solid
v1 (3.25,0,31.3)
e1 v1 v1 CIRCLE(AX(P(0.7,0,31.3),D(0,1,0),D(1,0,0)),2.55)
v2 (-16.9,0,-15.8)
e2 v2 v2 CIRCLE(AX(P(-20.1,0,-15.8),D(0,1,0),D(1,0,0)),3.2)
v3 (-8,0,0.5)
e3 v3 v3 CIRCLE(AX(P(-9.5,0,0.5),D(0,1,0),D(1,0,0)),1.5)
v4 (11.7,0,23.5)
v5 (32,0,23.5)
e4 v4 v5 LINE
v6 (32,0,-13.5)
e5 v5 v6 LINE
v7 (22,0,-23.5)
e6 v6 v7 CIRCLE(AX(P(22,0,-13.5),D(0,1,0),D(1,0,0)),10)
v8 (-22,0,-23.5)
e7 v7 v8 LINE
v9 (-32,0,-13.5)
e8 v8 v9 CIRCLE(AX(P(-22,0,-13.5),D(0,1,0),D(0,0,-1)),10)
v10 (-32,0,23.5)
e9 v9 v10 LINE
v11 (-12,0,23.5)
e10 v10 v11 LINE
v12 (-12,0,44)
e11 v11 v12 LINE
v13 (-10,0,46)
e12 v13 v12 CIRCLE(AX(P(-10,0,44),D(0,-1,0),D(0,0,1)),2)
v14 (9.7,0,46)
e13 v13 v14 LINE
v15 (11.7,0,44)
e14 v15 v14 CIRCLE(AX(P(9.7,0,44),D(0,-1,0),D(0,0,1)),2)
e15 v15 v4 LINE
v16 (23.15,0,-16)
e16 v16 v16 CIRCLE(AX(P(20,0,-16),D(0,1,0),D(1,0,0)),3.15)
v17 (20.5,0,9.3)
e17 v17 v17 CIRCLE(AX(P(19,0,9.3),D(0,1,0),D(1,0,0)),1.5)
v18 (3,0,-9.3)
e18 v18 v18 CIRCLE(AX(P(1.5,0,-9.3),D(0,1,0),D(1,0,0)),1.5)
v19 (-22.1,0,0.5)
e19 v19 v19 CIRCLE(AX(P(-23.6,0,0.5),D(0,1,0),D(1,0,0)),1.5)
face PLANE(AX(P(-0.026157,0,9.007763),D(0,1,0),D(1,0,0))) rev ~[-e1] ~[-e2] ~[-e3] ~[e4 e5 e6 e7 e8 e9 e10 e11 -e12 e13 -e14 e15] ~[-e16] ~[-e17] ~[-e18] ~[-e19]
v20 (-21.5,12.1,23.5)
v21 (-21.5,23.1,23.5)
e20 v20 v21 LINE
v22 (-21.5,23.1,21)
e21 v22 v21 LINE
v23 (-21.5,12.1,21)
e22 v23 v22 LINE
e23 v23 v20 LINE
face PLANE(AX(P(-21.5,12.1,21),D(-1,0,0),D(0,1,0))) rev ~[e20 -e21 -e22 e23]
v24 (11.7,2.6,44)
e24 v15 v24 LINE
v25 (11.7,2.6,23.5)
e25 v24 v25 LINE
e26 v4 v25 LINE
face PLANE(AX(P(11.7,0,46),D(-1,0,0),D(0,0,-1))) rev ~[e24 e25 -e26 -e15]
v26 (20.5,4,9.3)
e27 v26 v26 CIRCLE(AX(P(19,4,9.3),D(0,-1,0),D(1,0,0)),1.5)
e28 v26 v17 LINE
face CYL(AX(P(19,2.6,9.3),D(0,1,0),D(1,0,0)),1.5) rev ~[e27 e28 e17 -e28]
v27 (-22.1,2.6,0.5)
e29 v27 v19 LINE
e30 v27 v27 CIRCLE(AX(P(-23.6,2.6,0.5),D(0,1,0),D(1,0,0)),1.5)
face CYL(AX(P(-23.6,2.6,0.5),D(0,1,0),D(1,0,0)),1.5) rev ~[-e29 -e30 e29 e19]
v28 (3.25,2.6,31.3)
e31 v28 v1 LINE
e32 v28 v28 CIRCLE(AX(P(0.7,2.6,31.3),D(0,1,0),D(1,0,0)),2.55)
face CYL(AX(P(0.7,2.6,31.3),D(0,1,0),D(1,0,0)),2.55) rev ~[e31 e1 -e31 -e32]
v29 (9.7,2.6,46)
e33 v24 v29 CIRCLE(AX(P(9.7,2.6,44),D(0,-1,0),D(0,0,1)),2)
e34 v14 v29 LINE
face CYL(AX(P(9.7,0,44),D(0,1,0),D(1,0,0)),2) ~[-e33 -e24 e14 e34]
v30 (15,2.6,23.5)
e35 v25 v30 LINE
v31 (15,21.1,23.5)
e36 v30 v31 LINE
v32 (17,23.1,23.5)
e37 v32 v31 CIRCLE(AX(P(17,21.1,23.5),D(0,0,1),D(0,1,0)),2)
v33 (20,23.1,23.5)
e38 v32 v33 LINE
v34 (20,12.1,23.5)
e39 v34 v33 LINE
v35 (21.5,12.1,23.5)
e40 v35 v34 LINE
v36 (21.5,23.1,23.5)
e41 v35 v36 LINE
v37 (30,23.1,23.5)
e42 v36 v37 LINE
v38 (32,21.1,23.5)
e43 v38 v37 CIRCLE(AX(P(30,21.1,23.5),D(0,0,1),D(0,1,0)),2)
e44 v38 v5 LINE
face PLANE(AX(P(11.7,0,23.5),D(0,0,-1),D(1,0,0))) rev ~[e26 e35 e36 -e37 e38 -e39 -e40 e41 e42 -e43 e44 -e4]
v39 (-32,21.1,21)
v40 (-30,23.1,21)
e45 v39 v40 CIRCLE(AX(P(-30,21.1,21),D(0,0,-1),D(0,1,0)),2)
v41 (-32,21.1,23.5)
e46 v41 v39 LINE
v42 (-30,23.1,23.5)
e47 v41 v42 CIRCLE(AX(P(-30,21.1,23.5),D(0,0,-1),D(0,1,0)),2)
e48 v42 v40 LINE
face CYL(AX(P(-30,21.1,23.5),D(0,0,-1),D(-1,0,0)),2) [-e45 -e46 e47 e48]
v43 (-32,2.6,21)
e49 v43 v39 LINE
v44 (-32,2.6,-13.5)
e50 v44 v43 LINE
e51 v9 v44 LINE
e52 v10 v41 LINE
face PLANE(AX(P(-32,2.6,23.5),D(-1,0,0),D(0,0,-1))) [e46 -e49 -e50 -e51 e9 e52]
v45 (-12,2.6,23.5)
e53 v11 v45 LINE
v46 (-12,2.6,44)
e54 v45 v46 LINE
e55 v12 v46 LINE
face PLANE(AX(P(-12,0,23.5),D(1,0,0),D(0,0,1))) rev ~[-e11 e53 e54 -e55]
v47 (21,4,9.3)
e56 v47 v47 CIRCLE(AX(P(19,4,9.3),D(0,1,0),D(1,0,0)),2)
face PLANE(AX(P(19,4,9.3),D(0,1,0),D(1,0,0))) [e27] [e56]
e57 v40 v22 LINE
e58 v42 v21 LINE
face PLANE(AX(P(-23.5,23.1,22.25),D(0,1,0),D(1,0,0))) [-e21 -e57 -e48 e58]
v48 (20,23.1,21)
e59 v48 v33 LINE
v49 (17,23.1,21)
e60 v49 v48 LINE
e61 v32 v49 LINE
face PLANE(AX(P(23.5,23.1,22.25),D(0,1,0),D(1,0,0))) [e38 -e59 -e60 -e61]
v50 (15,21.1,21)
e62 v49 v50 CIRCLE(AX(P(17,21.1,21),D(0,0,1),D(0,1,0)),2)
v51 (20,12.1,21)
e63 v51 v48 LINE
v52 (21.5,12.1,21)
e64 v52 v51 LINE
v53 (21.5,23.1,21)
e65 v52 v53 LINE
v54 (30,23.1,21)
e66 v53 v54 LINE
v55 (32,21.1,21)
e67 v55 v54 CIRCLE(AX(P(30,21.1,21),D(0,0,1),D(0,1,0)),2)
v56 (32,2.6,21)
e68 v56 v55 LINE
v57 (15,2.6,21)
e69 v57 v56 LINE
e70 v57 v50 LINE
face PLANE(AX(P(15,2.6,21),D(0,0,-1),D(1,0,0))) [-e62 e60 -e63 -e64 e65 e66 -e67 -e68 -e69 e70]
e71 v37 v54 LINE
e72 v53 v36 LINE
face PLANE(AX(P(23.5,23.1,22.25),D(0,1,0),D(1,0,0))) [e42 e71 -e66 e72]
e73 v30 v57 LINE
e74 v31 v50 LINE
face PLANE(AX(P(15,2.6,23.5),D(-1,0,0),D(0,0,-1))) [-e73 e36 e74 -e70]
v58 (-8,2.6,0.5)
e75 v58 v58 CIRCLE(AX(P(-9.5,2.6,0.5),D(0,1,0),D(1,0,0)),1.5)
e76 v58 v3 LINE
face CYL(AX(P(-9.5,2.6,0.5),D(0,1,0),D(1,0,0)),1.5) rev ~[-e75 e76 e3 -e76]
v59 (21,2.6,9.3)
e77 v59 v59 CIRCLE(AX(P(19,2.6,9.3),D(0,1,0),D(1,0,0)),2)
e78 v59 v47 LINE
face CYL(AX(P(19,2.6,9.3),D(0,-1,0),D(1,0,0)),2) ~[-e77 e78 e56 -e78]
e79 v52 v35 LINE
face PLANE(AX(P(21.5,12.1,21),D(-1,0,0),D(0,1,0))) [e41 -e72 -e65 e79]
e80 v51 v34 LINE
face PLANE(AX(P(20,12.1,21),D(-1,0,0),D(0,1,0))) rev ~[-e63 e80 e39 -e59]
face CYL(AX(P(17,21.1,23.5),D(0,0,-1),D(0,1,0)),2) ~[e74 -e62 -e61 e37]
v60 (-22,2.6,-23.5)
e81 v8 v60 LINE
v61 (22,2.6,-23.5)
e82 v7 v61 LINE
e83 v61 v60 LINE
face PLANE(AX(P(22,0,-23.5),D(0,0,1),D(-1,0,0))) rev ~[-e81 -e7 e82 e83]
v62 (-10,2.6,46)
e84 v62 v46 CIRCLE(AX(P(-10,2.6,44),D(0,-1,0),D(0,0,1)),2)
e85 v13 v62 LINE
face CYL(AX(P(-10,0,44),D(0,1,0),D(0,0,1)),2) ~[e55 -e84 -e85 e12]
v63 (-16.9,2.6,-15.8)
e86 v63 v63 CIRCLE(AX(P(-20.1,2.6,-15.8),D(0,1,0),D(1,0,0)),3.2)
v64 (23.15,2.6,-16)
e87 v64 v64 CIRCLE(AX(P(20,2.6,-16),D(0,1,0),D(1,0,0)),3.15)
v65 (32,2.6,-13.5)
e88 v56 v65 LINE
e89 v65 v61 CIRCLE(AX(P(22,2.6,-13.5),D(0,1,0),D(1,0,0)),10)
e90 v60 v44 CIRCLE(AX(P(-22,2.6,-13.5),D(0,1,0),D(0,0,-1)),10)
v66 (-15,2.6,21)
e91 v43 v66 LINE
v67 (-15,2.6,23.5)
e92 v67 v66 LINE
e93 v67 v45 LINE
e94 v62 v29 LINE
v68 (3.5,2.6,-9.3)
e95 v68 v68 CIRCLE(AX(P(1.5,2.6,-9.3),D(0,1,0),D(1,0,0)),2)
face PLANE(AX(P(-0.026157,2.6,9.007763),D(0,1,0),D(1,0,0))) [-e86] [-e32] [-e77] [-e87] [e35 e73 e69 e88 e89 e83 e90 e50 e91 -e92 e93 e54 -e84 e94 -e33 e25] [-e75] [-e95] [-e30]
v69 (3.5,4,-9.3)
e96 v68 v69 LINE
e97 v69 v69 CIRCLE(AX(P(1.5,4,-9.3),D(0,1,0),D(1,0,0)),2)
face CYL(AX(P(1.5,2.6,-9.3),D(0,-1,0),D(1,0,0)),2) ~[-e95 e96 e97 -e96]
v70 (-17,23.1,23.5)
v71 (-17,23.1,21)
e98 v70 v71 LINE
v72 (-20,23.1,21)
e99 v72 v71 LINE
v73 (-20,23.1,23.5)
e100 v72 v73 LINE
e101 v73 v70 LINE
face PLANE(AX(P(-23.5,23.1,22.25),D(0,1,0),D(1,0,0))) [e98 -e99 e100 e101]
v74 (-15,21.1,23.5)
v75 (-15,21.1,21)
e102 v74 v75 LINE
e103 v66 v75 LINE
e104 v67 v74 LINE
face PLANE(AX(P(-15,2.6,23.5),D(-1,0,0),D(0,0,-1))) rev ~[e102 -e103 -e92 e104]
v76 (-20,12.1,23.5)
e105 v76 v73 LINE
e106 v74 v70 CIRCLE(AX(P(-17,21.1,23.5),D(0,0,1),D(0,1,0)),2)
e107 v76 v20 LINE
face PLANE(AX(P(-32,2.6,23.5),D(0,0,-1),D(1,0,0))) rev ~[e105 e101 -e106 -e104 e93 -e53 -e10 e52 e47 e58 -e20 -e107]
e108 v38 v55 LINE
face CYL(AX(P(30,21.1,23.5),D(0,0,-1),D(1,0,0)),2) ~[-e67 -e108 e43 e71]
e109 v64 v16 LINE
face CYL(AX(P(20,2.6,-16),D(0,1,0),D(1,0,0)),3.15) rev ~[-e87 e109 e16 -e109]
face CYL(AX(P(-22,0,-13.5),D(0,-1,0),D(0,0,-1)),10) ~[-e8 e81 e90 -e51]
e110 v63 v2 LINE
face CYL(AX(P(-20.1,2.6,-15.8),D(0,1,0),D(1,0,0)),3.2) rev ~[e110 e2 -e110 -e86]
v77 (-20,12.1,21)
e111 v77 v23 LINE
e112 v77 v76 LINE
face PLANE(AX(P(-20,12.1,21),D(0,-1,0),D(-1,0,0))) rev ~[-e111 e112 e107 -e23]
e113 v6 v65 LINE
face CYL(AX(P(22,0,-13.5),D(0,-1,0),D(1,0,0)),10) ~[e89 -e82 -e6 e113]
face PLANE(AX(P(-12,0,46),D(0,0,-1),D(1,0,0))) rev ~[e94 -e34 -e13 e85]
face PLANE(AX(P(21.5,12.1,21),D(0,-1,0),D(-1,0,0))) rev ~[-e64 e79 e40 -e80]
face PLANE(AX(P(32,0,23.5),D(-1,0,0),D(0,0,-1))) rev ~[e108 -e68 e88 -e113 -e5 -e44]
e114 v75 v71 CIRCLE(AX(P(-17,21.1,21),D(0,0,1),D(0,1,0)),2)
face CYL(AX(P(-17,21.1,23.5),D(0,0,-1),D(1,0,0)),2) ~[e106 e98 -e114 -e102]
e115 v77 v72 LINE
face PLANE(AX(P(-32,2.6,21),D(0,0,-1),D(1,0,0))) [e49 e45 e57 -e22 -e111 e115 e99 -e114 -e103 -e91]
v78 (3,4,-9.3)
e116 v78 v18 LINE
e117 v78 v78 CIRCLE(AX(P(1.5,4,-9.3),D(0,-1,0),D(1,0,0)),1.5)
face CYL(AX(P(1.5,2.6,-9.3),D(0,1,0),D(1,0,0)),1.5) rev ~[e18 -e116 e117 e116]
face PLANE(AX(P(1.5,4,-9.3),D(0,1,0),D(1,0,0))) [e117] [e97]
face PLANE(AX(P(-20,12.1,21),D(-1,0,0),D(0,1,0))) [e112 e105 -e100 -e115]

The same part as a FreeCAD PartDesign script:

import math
import FreeCAD as App
import Part
import Sketcher
from FreeCAD import Vector


def edges_at(feature, points):
    """Names of the edges that pass closest to the given points."""
    edges = feature.Shape.Edges
    near = lambda p: min(range(len(edges)), key=lambda i: edges[i].distToShape(Part.Vertex(*p))[0])
    return sorted({f"Edge{near(p) + 1}" for p in points})

doc = App.newDocument("Part")
body = doc.addObject("PartDesign::Body", "Body")

# Sketch on XZ plane
sketch1 = body.newObject("Sketcher::SketchObject", "Sketch")
sketch1.AttachmentSupport = (doc.getObject("XZ_Plane"), [""])
sketch1.MapMode = "FlatFace"
sketch1.addGeometry(Part.LineSegment(Vector(12, 24, 0), Vector(32, 24, 0)), False)
sketch1.addGeometry(Part.LineSegment(Vector(32, 24, 0), Vector(32, -14, 0)), False)
sketch1.addGeometry(Part.ArcOfCircle(Part.Circle(Vector(22, -14, 0), Vector(0, 0, 1), 10), math.radians(-90), math.radians(0)), False)
sketch1.addGeometry(Part.LineSegment(Vector(22, -24, 0), Vector(-22, -24, 0)), False)
sketch1.addGeometry(Part.ArcOfCircle(Part.Circle(Vector(-22, -14, 0), Vector(0, 0, 1), 10), math.radians(180), math.radians(270)), False)
sketch1.addGeometry(Part.LineSegment(Vector(-32, -14, 0), Vector(-32, 24, 0)), False)
sketch1.addGeometry(Part.LineSegment(Vector(-32, 24, 0), Vector(-12, 24, 0)), False)
sketch1.addGeometry(Part.LineSegment(Vector(-12, 24, 0), Vector(-12, 46, 0)), False)
sketch1.addGeometry(Part.LineSegment(Vector(-12, 46, 0), Vector(12, 46, 0)), False)
sketch1.addGeometry(Part.LineSegment(Vector(12, 46, 0), Vector(12, 24, 0)), False)
sketch1.addConstraint(Sketcher.Constraint("Coincident", 0, 2, 1, 1))
sketch1.addConstraint(Sketcher.Constraint("Tangent", 1, 2, 2, 2))
sketch1.addConstraint(Sketcher.Constraint("Tangent", 2, 1, 3, 1))
sketch1.addConstraint(Sketcher.Constraint("Tangent", 3, 2, 4, 2))
sketch1.addConstraint(Sketcher.Constraint("Tangent", 4, 1, 5, 1))
sketch1.addConstraint(Sketcher.Constraint("Coincident", 5, 2, 6, 1))
sketch1.addConstraint(Sketcher.Constraint("Coincident", 6, 2, 7, 1))
sketch1.addConstraint(Sketcher.Constraint("Coincident", 7, 2, 8, 1))
sketch1.addConstraint(Sketcher.Constraint("Coincident", 8, 2, 9, 1))
sketch1.addConstraint(Sketcher.Constraint("Coincident", 9, 2, 0, 1))
sketch1.addConstraint(Sketcher.Constraint("Horizontal", 0))
sketch1.addConstraint(Sketcher.Constraint("Vertical", 1))
sketch1.addConstraint(Sketcher.Constraint("Horizontal", 3))
sketch1.addConstraint(Sketcher.Constraint("Vertical", 5))
sketch1.addConstraint(Sketcher.Constraint("Horizontal", 6))
sketch1.addConstraint(Sketcher.Constraint("Vertical", 7))
sketch1.addConstraint(Sketcher.Constraint("Horizontal", 8))
sketch1.addConstraint(Sketcher.Constraint("Vertical", 9))
sketch1.addConstraint(Sketcher.Constraint("Equal", 2, 4))
sketch1.addConstraint(Sketcher.Constraint("Symmetric", 0, 2, 5, 2, -2))
sketch1.addConstraint(Sketcher.Constraint("Radius", 2, 10.0))
sketch1.addConstraint(Sketcher.Constraint("DistanceX", 3, 2, 3, 1, 44.0))
sketch1.addConstraint(Sketcher.Constraint("DistanceX", 6, 1, 6, 2, 20.0))
sketch1.addConstraint(Sketcher.Constraint("DistanceY", 1, 2, 1, 1, 37.0))
sketch1.addConstraint(Sketcher.Constraint("DistanceX", 0, 1, 0, 2, 20.3))
sketch1.addConstraint(Sketcher.Constraint("DistanceY", 7, 1, 7, 2, 22.5))
sketch1.addConstraint(Sketcher.Constraint("DistanceY", -1, 1, 7, 2, 46.0))
pad1 = body.newObject("PartDesign::Pad", "Pad")
pad1.Profile = sketch1
pad1.Length = 2.6
pad1.Reversed = True

# Sketch on XZ plane
sketch2 = body.newObject("Sketcher::SketchObject", "Sketch001")
sketch2.AttachmentSupport = (doc.getObject("XZ_Plane"), [""])
sketch2.MapMode = "FlatFace"
sketch2.AttachmentOffset = App.Placement(Vector(0, 0, -2.6), App.Rotation())
sketch2.addGeometry(Part.LineSegment(Vector(-32, 21, 0), Vector(-32, 23.5, 0)), False)
sketch2.addGeometry(Part.LineSegment(Vector(-32, 23.5, 0), Vector(-15, 23.5, 0)), False)
sketch2.addGeometry(Part.LineSegment(Vector(-15, 23.5, 0), Vector(-15, 21, 0)), False)
sketch2.addGeometry(Part.LineSegment(Vector(-15, 21, 0), Vector(-32, 21, 0)), False)
sketch2.addGeometry(Part.LineSegment(Vector(15, 21, 0), Vector(15, 23.5, 0)), False)
sketch2.addGeometry(Part.LineSegment(Vector(15, 23.5, 0), Vector(32, 23.5, 0)), False)
sketch2.addGeometry(Part.LineSegment(Vector(32, 23.5, 0), Vector(32, 21, 0)), False)
sketch2.addGeometry(Part.LineSegment(Vector(32, 21, 0), Vector(15, 21, 0)), False)
sketch2.addConstraint(Sketcher.Constraint("Coincident", 0, 2, 1, 1))
sketch2.addConstraint(Sketcher.Constraint("Coincident", 1, 2, 2, 1))
sketch2.addConstraint(Sketcher.Constraint("Coincident", 2, 2, 3, 1))
sketch2.addConstraint(Sketcher.Constraint("Coincident", 3, 2, 0, 1))
sketch2.addConstraint(Sketcher.Constraint("Coincident", 4, 2, 5, 1))
sketch2.addConstraint(Sketcher.Constraint("Coincident", 5, 2, 6, 1))
sketch2.addConstraint(Sketcher.Constraint("Coincident", 6, 2, 7, 1))
sketch2.addConstraint(Sketcher.Constraint("Coincident", 7, 2, 4, 1))
sketch2.addConstraint(Sketcher.Constraint("Vertical", 0))
sketch2.addConstraint(Sketcher.Constraint("Horizontal", 1))
sketch2.addConstraint(Sketcher.Constraint("Vertical", 2))
sketch2.addConstraint(Sketcher.Constraint("Horizontal", 3))
sketch2.addConstraint(Sketcher.Constraint("Vertical", 4))
sketch2.addConstraint(Sketcher.Constraint("Horizontal", 5))
sketch2.addConstraint(Sketcher.Constraint("Vertical", 6))
sketch2.addConstraint(Sketcher.Constraint("Horizontal", 7))
sketch2.addConstraint(Sketcher.Constraint("Symmetric", 1, 2, 4, 2, -2))
sketch2.addConstraint(Sketcher.Constraint("Symmetric", 3, 2, 6, 2, -2))
sketch2.addConstraint(Sketcher.Constraint("DistanceX", 1, 1, 1, 2, 17.0))
sketch2.addConstraint(Sketcher.Constraint("DistanceY", 0, 1, 0, 2, 2.5))
sketch2.addConstraint(Sketcher.Constraint("DistanceX", 0, 2, -1, 1, 32.0))
sketch2.addConstraint(Sketcher.Constraint("DistanceY", -1, 1, 2, 2, 21.0))
pad2 = body.newObject("PartDesign::Pad", "Pad001")
pad2.Profile = sketch2
pad2.Length = 20.5
pad2.Reversed = True

# Sketch on XZ plane
sketch3 = body.newObject("Sketcher::SketchObject", "Sketch002")
sketch3.AttachmentSupport = (doc.getObject("XZ_Plane"), [""])
sketch3.MapMode = "FlatFace"
sketch3.AttachmentOffset = App.Placement(Vector(0, 0, -2.6), App.Rotation())
sketch3.addGeometry(Part.Circle(Vector(19, 9.3, 0), Vector(0, 0, 1), 2), False)
sketch3.addGeometry(Part.Circle(Vector(1.5, -9.3, 0), Vector(0, 0, 1), 2), False)
sketch3.addConstraint(Sketcher.Constraint("Equal", 0, 1))
sketch3.addConstraint(Sketcher.Constraint("Diameter", 0, 4.0))
sketch3.addConstraint(Sketcher.Constraint("DistanceX", -1, 1, 0, 3, 19.0))
sketch3.addConstraint(Sketcher.Constraint("DistanceY", -1, 1, 0, 3, 9.3))
sketch3.addConstraint(Sketcher.Constraint("DistanceX", -1, 1, 1, 3, 1.5))
sketch3.addConstraint(Sketcher.Constraint("DistanceY", 1, 3, -1, 1, 9.3))
pad3 = body.newObject("PartDesign::Pad", "Pad002")
pad3.Profile = sketch3
pad3.Length = 1.4
pad3.Reversed = True

# Sketch on XZ plane
sketch4 = body.newObject("Sketcher::SketchObject", "Sketch003")
sketch4.AttachmentSupport = (doc.getObject("XZ_Plane"), [""])
sketch4.MapMode = "FlatFace"
sketch4.AttachmentOffset = App.Placement(Vector(0, 0, -2.6), App.Rotation())
sketch4.addGeometry(Part.Circle(Vector(-20.1, -15.8, 0), Vector(0, 0, 1), 3.2), False)
sketch4.addGeometry(Part.Circle(Vector(20, -16, 0), Vector(0, 0, 1), 3.1), False)
sketch4.addGeometry(Part.Circle(Vector(1.5, -9.3, 0), Vector(0, 0, 1), 1.5), False)
sketch4.addGeometry(Part.Circle(Vector(-23.6, 0.5, 0), Vector(0, 0, 1), 1.5), False)
sketch4.addGeometry(Part.Circle(Vector(-9.5, 0.5, 0), Vector(0, 0, 1), 1.5), False)
sketch4.addGeometry(Part.Circle(Vector(19, 9.3, 0), Vector(0, 0, 1), 1.5), False)
sketch4.addGeometry(Part.Circle(Vector(0.7, 31.3, 0), Vector(0, 0, 1), 2.5), False)
sketch4.addConstraint(Sketcher.Constraint("Equal", 2, 3))
sketch4.addConstraint(Sketcher.Constraint("Equal", 3, 4))
sketch4.addConstraint(Sketcher.Constraint("Equal", 4, 5))
sketch4.addConstraint(Sketcher.Constraint("Horizontal", 3, 3, 4, 3))
sketch4.addConstraint(Sketcher.Constraint("Diameter", 2, 3.0))
sketch4.addConstraint(Sketcher.Constraint("Diameter", 0, 6.4))
sketch4.addConstraint(Sketcher.Constraint("Diameter", 1, 6.3))
sketch4.addConstraint(Sketcher.Constraint("Diameter", 6, 5.1))
sketch4.addConstraint(Sketcher.Constraint("DistanceX", -1, 1, 1, 3, 20.0))
sketch4.addConstraint(Sketcher.Constraint("DistanceY", 1, 3, -1, 1, 16.0))
sketch4.addConstraint(Sketcher.Constraint("DistanceX", -1, 1, 5, 3, 19.0))
sketch4.addConstraint(Sketcher.Constraint("DistanceX", 4, 3, 2, 3, 11.0))
sketch4.addConstraint(Sketcher.Constraint("DistanceY", 5, 3, 6, 3, 22.0))
sketch4.addConstraint(Sketcher.Constraint("DistanceX", 0, 3, -1, 1, 20.1))
sketch4.addConstraint(Sketcher.Constraint("DistanceY", 0, 3, -1, 1, 15.8))
sketch4.addConstraint(Sketcher.Constraint("DistanceX", -1, 1, 2, 3, 1.5))
sketch4.addConstraint(Sketcher.Constraint("DistanceY", 2, 3, -1, 1, 9.3))
sketch4.addConstraint(Sketcher.Constraint("DistanceX", 3, 3, -1, 1, 23.6))
sketch4.addConstraint(Sketcher.Constraint("DistanceY", -1, 1, 3, 3, 0.5))
sketch4.addConstraint(Sketcher.Constraint("DistanceY", -1, 1, 5, 3, 9.3))
sketch4.addConstraint(Sketcher.Constraint("DistanceX", -1, 1, 6, 3, 0.7))
pocket1 = body.newObject("PartDesign::Pocket", "Pocket")
pocket1.Profile = sketch4
pocket1.Type = "ThroughAll"
pocket1.Midplane = True
doc.recompute()

fillet = body.newObject("PartDesign::Fillet", "Fillet")
fillet.Base = (pocket1, edges_at(pocket1, [
    (-32, 23.1, 22.25),
    (-15, 23.1, 22.25),
    (32, 23.1, 22.25),
    (15, 23.1, 22.25),
]))
fillet.Radius = 2

# Sketch on XY plane
sketch5 = body.newObject("Sketcher::SketchObject", "Sketch004")
sketch5.AttachmentSupport = (doc.getObject("XY_Plane"), [""])
sketch5.MapMode = "FlatFace"
sketch5.AttachmentOffset = App.Placement(Vector(0, 0, 21), App.Rotation())
sketch5.addGeometry(Part.LineSegment(Vector(21.5, 23.1, 0), Vector(21.5, 12.1, 0)), False)
sketch5.addGeometry(Part.LineSegment(Vector(21.5, 12.1, 0), Vector(20, 12.1, 0)), False)
sketch5.addGeometry(Part.LineSegment(Vector(20, 12.1, 0), Vector(20, 23.1, 0)), False)
sketch5.addGeometry(Part.LineSegment(Vector(20, 23.1, 0), Vector(21.5, 23.1, 0)), False)
sketch5.addGeometry(Part.LineSegment(Vector(-20, 23.1, 0), Vector(-20, 12.1, 0)), False)
sketch5.addGeometry(Part.LineSegment(Vector(-20, 12.1, 0), Vector(-21.5, 12.1, 0)), False)
sketch5.addGeometry(Part.LineSegment(Vector(-21.5, 12.1, 0), Vector(-21.5, 23.1, 0)), False)
sketch5.addGeometry(Part.LineSegment(Vector(-21.5, 23.1, 0), Vector(-20, 23.1, 0)), False)
sketch5.addConstraint(Sketcher.Constraint("Coincident", 0, 2, 1, 1))
sketch5.addConstraint(Sketcher.Constraint("Coincident", 1, 2, 2, 1))
sketch5.addConstraint(Sketcher.Constraint("Coincident", 2, 2, 3, 1))
sketch5.addConstraint(Sketcher.Constraint("Coincident", 3, 2, 0, 1))
sketch5.addConstraint(Sketcher.Constraint("Coincident", 4, 2, 5, 1))
sketch5.addConstraint(Sketcher.Constraint("Coincident", 5, 2, 6, 1))
sketch5.addConstraint(Sketcher.Constraint("Coincident", 6, 2, 7, 1))
sketch5.addConstraint(Sketcher.Constraint("Coincident", 7, 2, 4, 1))
sketch5.addConstraint(Sketcher.Constraint("Vertical", 0))
sketch5.addConstraint(Sketcher.Constraint("Horizontal", 1))
sketch5.addConstraint(Sketcher.Constraint("Vertical", 2))
sketch5.addConstraint(Sketcher.Constraint("Horizontal", 3))
sketch5.addConstraint(Sketcher.Constraint("Vertical", 4))
sketch5.addConstraint(Sketcher.Constraint("Horizontal", 5))
sketch5.addConstraint(Sketcher.Constraint("Vertical", 6))
sketch5.addConstraint(Sketcher.Constraint("Horizontal", 7))
sketch5.addConstraint(Sketcher.Constraint("Symmetric", 1, 2, 4, 2, -2))
sketch5.addConstraint(Sketcher.Constraint("Symmetric", 3, 2, 6, 2, -2))
sketch5.addConstraint(Sketcher.Constraint("DistanceY", 0, 2, 0, 1, 11.0))
sketch5.addConstraint(Sketcher.Constraint("DistanceX", 1, 2, 1, 1, 1.5))
sketch5.addConstraint(Sketcher.Constraint("DistanceX", -1, 1, 1, 2, 20.0))
sketch5.addConstraint(Sketcher.Constraint("DistanceY", -1, 1, 0, 2, 12.1))
pocket2 = body.newObject("PartDesign::Pocket", "Pocket001")
pocket2.Profile = sketch5
pocket2.Type = "ThroughAll"
pocket2.Reversed = True
doc.recompute()

fillet2 = body.newObject("PartDesign::Fillet", "Fillet001")
fillet2.Base = (pocket2, edges_at(pocket2, [(11.7, 1.3, 46), (-12, 1.3, 46)]))
fillet2.Radius = 2

doc.recompute()
